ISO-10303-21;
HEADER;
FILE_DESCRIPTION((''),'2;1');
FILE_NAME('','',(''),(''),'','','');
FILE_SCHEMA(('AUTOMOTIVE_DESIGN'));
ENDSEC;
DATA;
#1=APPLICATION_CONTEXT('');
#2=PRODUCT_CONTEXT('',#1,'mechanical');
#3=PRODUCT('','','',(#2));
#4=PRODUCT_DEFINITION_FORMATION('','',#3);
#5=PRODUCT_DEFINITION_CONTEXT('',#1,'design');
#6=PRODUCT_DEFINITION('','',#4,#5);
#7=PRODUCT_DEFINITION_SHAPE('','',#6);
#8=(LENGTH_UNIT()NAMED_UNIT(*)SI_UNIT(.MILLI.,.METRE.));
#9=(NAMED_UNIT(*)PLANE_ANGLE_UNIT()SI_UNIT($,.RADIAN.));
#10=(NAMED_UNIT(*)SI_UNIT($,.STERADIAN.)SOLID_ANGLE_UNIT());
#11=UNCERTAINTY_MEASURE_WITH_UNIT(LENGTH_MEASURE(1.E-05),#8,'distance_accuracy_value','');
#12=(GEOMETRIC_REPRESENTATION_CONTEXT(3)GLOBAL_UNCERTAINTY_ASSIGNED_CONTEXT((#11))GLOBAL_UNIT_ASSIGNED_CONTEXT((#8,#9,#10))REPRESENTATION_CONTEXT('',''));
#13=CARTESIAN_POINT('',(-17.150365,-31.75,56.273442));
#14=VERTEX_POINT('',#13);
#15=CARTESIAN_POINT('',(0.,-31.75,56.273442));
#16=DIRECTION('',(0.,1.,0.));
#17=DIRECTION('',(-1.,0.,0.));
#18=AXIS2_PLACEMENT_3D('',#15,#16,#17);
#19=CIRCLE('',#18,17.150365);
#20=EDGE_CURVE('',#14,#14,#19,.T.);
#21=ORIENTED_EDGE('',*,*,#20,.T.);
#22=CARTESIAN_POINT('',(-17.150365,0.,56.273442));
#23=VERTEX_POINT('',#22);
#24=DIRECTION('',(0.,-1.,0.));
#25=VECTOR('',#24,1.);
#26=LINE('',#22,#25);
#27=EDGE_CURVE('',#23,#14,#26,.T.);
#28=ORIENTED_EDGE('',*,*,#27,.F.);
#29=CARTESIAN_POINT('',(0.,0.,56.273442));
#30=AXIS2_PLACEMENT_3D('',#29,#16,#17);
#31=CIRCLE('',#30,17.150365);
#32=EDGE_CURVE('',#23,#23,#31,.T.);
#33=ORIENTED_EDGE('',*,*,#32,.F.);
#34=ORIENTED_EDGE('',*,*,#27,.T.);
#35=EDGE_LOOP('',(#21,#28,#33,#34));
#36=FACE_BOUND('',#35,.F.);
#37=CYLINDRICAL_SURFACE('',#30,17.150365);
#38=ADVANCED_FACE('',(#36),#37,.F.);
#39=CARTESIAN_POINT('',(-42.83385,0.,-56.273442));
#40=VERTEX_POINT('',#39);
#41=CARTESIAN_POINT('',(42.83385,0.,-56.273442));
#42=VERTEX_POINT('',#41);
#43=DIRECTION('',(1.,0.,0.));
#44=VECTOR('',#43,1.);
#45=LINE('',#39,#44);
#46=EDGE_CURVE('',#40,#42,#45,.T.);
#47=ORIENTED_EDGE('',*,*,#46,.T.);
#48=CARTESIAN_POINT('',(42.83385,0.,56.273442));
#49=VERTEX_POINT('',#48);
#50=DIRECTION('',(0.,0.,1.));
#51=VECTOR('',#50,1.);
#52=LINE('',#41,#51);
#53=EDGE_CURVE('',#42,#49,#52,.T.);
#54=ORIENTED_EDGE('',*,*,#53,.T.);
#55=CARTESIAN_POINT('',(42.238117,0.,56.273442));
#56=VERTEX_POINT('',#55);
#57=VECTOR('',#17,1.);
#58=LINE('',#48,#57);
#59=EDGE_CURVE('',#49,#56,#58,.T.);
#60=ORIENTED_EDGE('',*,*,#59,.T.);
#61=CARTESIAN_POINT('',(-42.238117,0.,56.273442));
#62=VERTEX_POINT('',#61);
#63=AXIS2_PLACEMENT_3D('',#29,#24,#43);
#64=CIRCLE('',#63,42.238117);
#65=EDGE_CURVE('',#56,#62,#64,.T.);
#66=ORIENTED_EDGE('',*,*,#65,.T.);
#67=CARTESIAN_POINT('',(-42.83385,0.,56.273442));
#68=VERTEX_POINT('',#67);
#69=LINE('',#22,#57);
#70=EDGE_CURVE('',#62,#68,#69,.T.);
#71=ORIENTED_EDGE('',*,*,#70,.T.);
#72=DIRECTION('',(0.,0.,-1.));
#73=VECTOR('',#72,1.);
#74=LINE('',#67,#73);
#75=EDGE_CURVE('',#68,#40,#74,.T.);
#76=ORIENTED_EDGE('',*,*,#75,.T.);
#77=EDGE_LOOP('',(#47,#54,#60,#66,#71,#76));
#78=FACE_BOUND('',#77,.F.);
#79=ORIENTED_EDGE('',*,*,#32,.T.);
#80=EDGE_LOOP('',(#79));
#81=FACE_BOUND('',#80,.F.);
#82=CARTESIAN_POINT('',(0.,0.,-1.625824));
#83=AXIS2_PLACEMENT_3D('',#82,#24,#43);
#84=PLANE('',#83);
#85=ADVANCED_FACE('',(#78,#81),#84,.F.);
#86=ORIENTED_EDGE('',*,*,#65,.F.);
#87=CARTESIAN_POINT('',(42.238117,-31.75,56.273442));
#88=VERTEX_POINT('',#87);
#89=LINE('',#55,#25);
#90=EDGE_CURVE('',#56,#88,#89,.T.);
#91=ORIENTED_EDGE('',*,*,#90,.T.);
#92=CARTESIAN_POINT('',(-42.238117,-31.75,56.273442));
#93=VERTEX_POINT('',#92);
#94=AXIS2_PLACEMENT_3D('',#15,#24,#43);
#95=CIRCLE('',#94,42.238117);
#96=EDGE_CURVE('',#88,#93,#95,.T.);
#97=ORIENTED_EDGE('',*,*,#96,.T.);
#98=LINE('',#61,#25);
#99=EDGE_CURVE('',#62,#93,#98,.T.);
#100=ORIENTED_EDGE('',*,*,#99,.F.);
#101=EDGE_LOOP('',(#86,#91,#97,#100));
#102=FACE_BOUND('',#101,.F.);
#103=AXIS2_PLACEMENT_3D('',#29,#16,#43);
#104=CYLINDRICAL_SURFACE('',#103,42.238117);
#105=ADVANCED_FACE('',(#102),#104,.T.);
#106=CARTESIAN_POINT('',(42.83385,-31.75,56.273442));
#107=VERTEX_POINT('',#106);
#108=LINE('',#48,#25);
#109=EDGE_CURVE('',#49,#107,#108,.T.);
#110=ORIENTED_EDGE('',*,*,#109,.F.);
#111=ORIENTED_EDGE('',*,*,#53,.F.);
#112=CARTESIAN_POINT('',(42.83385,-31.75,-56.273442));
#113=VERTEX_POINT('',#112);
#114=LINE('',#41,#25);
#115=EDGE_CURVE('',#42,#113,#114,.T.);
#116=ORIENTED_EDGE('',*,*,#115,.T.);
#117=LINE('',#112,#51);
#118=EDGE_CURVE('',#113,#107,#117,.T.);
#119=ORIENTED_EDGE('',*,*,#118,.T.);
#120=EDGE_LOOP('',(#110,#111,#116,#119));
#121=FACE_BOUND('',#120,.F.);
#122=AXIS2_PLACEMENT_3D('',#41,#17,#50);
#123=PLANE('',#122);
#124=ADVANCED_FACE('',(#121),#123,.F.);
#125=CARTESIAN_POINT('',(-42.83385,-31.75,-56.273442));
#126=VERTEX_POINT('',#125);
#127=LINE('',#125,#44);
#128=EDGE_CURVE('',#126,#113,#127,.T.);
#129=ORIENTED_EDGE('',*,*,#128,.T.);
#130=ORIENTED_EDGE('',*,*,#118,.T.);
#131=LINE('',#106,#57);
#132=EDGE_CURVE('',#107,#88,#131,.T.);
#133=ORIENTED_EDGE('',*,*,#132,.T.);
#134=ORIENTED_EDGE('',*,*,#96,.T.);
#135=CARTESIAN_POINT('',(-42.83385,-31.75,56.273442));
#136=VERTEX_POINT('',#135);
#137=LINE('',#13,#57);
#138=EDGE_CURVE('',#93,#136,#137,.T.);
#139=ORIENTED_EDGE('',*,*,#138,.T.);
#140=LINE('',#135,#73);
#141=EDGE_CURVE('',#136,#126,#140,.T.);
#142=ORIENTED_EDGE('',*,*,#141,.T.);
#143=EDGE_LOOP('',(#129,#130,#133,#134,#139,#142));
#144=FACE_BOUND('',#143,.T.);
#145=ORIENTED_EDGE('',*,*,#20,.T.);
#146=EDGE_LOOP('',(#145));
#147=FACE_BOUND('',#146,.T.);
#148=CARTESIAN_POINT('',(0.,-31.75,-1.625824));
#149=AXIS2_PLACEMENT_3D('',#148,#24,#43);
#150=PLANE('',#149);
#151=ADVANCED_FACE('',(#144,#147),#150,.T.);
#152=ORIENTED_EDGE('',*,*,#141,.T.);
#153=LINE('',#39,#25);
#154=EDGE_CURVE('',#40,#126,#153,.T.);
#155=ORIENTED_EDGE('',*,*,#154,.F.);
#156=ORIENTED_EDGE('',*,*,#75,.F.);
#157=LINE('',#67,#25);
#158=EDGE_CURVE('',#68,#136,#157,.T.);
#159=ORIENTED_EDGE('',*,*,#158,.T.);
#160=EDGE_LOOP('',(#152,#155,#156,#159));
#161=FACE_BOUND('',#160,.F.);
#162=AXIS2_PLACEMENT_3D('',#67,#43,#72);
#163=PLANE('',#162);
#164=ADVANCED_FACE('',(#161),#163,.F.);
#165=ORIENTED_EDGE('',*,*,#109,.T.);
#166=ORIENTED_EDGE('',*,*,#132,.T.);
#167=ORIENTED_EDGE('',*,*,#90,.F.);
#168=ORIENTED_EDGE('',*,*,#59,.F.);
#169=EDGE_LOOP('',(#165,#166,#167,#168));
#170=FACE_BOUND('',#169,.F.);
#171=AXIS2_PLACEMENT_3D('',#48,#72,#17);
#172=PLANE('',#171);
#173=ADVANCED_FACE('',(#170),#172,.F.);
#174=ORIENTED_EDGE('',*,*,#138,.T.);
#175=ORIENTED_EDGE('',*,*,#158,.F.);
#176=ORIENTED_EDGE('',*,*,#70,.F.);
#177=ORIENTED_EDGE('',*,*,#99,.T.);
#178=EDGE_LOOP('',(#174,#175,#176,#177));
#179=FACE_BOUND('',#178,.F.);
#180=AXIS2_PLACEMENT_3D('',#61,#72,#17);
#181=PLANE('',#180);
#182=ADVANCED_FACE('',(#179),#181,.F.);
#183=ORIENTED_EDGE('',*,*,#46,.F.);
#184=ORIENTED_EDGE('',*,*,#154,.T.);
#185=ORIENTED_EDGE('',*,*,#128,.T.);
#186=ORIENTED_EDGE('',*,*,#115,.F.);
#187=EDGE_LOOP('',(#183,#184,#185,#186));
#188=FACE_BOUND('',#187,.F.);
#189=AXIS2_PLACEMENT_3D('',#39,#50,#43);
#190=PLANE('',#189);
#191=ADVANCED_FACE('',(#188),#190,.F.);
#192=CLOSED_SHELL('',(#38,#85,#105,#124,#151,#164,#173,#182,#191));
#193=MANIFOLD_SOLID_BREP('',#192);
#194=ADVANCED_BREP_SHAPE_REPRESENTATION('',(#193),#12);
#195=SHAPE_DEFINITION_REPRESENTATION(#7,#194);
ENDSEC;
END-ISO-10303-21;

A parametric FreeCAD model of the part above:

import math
import FreeCAD as App
import Part
import Sketcher
from FreeCAD import Vector
Q = App.Units.Quantity

doc = App.newDocument("Part")
body = doc.addObject("PartDesign::Body", "Body")

# Sketch on XZ plane
sketch1 = body.newObject("Sketcher::SketchObject", "Sketch")
sketch1.AttachmentSupport = (doc.getObject("XZ_Plane"), [""])
sketch1.MapMode = "FlatFace"
sketch1.addGeometry([
    Part.LineSegment(Vector(42.8, 56.3, 0), Vector(42.2, 56.3, 0)),  # 0
    Part.ArcOfCircle(Part.Circle(Vector(0, 56.3, 0), Vector(0, 0, 1), 42.2), math.radians(0), math.radians(180)),  # 1
    Part.LineSegment(Vector(-42.2, 56.3, 0), Vector(-42.8, 56.3, 0)),  # 2
    Part.LineSegment(Vector(-42.8, 56.3, 0), Vector(-42.8, -56.3, 0)),  # 3
    Part.LineSegment(Vector(-42.8, -56.3, 0), Vector(42.8, -56.3, 0)),  # 4
    Part.LineSegment(Vector(42.8, -56.3, 0), Vector(42.8, 56.3, 0)),  # 5
    Part.Circle(Vector(0, 56.3, 0), Vector(0, 0, 1), 17.2),  # 6
], False)
sketch1.addConstraint([
    Sketcher.Constraint("Coincident", 0, 2, 1, 1),
    Sketcher.Constraint("Coincident", 1, 2, 2, 1),
    Sketcher.Constraint("Coincident", 2, 2, 3, 1),
    Sketcher.Constraint("Coincident", 3, 2, 4, 1),
    Sketcher.Constraint("Coincident", 4, 2, 5, 1),
    Sketcher.Constraint("Coincident", 5, 2, 0, 1),
    Sketcher.Constraint("Horizontal", 0),
    Sketcher.Constraint("Horizontal", 2),
    Sketcher.Constraint("Vertical", 3),
    Sketcher.Constraint("Horizontal", 4),
    Sketcher.Constraint("Vertical", 5),
    Sketcher.Constraint("Coincident", 6, 3, 1, 3),
    Sketcher.Constraint("Symmetric", 2, 2, 4, 2, -1, 1),
    Sketcher.Constraint("Symmetric", 0, 2, 1, 2, -2),
    Sketcher.Constraint("Horizontal", 6, 3, 0, 2),
    Sketcher.Constraint("Diameter", 6, 34.30073),
    Sketcher.Constraint("DistanceX", 4, 1, 4, 2, 85.6677),
    Sketcher.Constraint("Radius", 1, 42.238117),
    Sketcher.Constraint("DistanceY", 3, 2, 3, 1, 112.546884),
])
pad1 = body.newObject("PartDesign::Pad", "Pad")
pad1.Profile = sketch1
pad1.Length = Q("1.25 in")

doc.recompute()
